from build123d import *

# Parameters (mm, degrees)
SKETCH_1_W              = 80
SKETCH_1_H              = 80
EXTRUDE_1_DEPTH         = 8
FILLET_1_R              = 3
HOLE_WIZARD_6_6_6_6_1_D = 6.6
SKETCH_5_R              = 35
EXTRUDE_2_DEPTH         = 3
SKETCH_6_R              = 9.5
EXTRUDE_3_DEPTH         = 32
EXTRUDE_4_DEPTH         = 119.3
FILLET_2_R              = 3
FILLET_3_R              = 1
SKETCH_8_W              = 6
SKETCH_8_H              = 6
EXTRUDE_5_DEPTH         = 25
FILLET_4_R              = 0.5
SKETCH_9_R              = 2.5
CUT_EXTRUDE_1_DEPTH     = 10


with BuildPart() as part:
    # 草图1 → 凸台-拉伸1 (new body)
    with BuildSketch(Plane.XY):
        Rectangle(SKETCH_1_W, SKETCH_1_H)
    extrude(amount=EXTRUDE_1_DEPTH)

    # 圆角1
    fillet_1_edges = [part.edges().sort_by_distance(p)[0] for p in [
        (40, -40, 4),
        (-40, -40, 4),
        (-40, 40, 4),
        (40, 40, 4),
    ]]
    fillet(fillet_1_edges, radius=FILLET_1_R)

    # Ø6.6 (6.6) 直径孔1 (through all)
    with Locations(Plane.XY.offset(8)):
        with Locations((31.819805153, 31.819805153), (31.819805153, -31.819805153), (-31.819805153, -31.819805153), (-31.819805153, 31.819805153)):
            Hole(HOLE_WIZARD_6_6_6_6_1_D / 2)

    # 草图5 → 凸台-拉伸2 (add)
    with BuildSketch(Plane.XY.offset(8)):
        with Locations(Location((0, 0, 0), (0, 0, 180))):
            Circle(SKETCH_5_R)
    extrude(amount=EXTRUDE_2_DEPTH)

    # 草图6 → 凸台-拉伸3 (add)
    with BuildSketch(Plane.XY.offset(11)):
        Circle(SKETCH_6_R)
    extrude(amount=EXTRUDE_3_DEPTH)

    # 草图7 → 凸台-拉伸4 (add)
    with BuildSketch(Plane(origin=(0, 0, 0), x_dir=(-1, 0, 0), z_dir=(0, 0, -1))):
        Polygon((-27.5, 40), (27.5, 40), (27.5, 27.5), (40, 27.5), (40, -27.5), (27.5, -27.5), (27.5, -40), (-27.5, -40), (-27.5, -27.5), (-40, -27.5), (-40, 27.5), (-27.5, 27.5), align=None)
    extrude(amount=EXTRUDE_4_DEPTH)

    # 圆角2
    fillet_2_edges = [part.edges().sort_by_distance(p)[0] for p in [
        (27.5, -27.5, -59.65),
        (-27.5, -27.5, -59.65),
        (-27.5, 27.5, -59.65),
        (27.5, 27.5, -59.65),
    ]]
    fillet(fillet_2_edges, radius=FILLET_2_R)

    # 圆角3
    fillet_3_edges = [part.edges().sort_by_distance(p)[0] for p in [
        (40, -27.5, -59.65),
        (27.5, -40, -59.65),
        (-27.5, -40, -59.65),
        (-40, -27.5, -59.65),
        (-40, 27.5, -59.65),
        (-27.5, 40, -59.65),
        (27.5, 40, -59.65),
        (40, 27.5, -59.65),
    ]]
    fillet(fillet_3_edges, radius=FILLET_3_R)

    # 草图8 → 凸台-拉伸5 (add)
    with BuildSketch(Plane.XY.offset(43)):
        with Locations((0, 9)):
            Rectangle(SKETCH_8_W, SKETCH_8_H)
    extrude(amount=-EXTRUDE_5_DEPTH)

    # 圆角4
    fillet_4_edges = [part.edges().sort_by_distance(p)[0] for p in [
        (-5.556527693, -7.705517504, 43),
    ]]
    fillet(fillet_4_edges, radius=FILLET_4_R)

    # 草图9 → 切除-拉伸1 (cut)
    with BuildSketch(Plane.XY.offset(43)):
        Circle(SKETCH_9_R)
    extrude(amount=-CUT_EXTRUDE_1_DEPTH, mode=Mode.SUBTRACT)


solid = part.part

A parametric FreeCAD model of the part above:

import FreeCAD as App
import Part
import Sketcher
from FreeCAD import Vector


def edges_at(feature, points):
    """Names of the edges that pass closest to the given points."""
    edges = feature.Shape.Edges
    near = lambda p: min(range(len(edges)), key=lambda i: edges[i].distToShape(Part.Vertex(*p))[0])
    return sorted({f"Edge{near(p) + 1}" for p in points})

doc = App.newDocument("Part")
body = doc.addObject("PartDesign::Body", "Body")

# Sketch on XY plane
sketch1 = body.newObject("Sketcher::SketchObject", "Sketch")
sketch1.AttachmentSupport = (doc.getObject("XY_Plane"), [""])
sketch1.MapMode = "FlatFace"
sketch1.addGeometry([
    Part.LineSegment(Vector(-40, 40, 0), Vector(-40, -40, 0)),
    Part.LineSegment(Vector(-40, -40, 0), Vector(40, -40, 0)),
    Part.LineSegment(Vector(40, -40, 0), Vector(40, 40, 0)),
    Part.LineSegment(Vector(40, 40, 0), Vector(-40, 40, 0)),
], False)
sketch1.addConstraint([
    Sketcher.Constraint("Coincident", 0, 2, 1, 1),
    Sketcher.Constraint("Coincident", 1, 2, 2, 1),
    Sketcher.Constraint("Coincident", 2, 2, 3, 1),
    Sketcher.Constraint("Coincident", 3, 2, 0, 1),
    Sketcher.Constraint("Vertical", 0),
    Sketcher.Constraint("Horizontal", 1),
    Sketcher.Constraint("Vertical", 2),
    Sketcher.Constraint("Horizontal", 3),
    Sketcher.Constraint("Symmetric", 0, 2, 2, 2, -1, 1),
    Sketcher.Constraint("Equal", 3, 0),
    Sketcher.Constraint("DistanceX", 1, 1, 1, 2, 80.0),
])
pad1 = body.newObject("PartDesign::Pad", "Pad")
pad1.Profile = sketch1
pad1.Length = 8
doc.recompute()

fillet = body.newObject("PartDesign::Fillet", "Fillet")
fillet.Base = (pad1, edges_at(pad1, [
    (40, -40, 4),
    (-40, -40, 4),
    (-40, 40, 4),
    (40, 40, 4),
]))
fillet.Radius = 3

# Sketch on XY plane
sketch2 = body.newObject("Sketcher::SketchObject", "Sketch001")
sketch2.AttachmentSupport = (doc.getObject("XY_Plane"), [""])
sketch2.MapMode = "FlatFace"
sketch2.AttachmentOffset = App.Placement(Vector(0, 0, 8), App.Rotation())
sketch2.addGeometry([
    Part.Circle(Vector(31.819805, 31.819805, 0), Vector(0, 0, 1), 3.3),
    Part.Circle(Vector(31.819805, -31.819805, 0), Vector(0, 0, 1), 3.3),
    Part.Circle(Vector(-31.819805, -31.819805, 0), Vector(0, 0, 1), 3.3),
    Part.Circle(Vector(-31.819805, 31.819805, 0), Vector(0, 0, 1), 3.3),
], False)
sketch2.addConstraint([
    Sketcher.Constraint("Equal", 0, 1),
    Sketcher.Constraint("Equal", 1, 2),
    Sketcher.Constraint("Equal", 2, 3),
    Sketcher.Constraint("Symmetric", 0, 3, 2, 3, -1, 1),
    Sketcher.Constraint("Symmetric", 1, 3, 3, 3, -1, 1),
    Sketcher.Constraint("Symmetric", 1, 3, 2, 3, -2),
    Sketcher.Constraint("Diameter", 0, 6.6),
    Sketcher.Constraint("DistanceY", 1, 3, 0, 3, 63.63961),
    Sketcher.Constraint("DistanceX", 2, 3, 1, 3, 63.63961),
])
doc.recompute()
hole = body.newObject("PartDesign::Hole", "Hole")
hole.Profile = sketch2
hole.ThreadType = "None"
hole.Diameter = 6.6
hole.DepthType = "ThroughAll"

# Sketch on XY plane
sketch3 = body.newObject("Sketcher::SketchObject", "Sketch002")
sketch3.AttachmentSupport = (doc.getObject("XY_Plane"), [""])
sketch3.MapMode = "FlatFace"
sketch3.AttachmentOffset = App.Placement(Vector(0, 0, 8), App.Rotation())
sketch3.addGeometry(Part.Circle(Vector(0, 0, 0), Vector(0, 0, 1), 35), False)
sketch3.addConstraint([
    Sketcher.Constraint("Coincident", 0, 3, -1, 1),
    Sketcher.Constraint("Diameter", 0, 70.0),
])
pad2 = body.newObject("PartDesign::Pad", "Pad001")
pad2.Profile = sketch3
pad2.Length = 3

# Sketch on XY plane
sketch4 = body.newObject("Sketcher::SketchObject", "Sketch003")
sketch4.AttachmentSupport = (doc.getObject("XY_Plane"), [""])
sketch4.MapMode = "FlatFace"
sketch4.AttachmentOffset = App.Placement(Vector(0, 0, 11), App.Rotation())
sketch4.addGeometry(Part.Circle(Vector(0, 0, 0), Vector(0, 0, 1), 9.5), False)
sketch4.addConstraint([
    Sketcher.Constraint("Coincident", 0, 3, -1, 1),
    Sketcher.Constraint("Diameter", 0, 19.0),
])
pad3 = body.newObject("PartDesign::Pad", "Pad002")
pad3.Profile = sketch4
pad3.Length = 32

# Sketch on XY plane
sketch5 = body.newObject("Sketcher::SketchObject", "Sketch004")
sketch5.AttachmentSupport = (doc.getObject("XY_Plane"), [""])
sketch5.MapMode = "FlatFace"
sketch5.addGeometry([
    Part.LineSegment(Vector(-27.5, 40, 0), Vector(27.5, 40, 0)),  # 0
    Part.LineSegment(Vector(27.5, 40, 0), Vector(27.5, 27.5, 0)),  # 1
    Part.LineSegment(Vector(27.5, 27.5, 0), Vector(40, 27.5, 0)),  # 2
    Part.LineSegment(Vector(40, 27.5, 0), Vector(40, -27.5, 0)),  # 3
    Part.LineSegment(Vector(40, -27.5, 0), Vector(27.5, -27.5, 0)),  # 4
    Part.LineSegment(Vector(27.5, -27.5, 0), Vector(27.5, -40, 0)),  # 5
    Part.LineSegment(Vector(27.5, -40, 0), Vector(-27.5, -40, 0)),  # 6
    Part.LineSegment(Vector(-27.5, -40, 0), Vector(-27.5, -27.5, 0)),  # 7
    Part.LineSegment(Vector(-27.5, -27.5, 0), Vector(-40, -27.5, 0)),  # 8
    Part.LineSegment(Vector(-40, -27.5, 0), Vector(-40, 27.5, 0)),  # 9
    Part.LineSegment(Vector(-40, 27.5, 0), Vector(-27.5, 27.5, 0)),  # 10
    Part.LineSegment(Vector(-27.5, 27.5, 0), Vector(-27.5, 40, 0)),  # 11
], False)
sketch5.addConstraint([
    Sketcher.Constraint("Coincident", 0, 2, 1, 1),
    Sketcher.Constraint("Coincident", 1, 2, 2, 1),
    Sketcher.Constraint("Coincident", 2, 2, 3, 1),
    Sketcher.Constraint("Coincident", 3, 2, 4, 1),
    Sketcher.Constraint("Coincident", 4, 2, 5, 1),
    Sketcher.Constraint("Coincident", 5, 2, 6, 1),
    Sketcher.Constraint("Coincident", 6, 2, 7, 1),
    Sketcher.Constraint("Coincident", 7, 2, 8, 1),
    Sketcher.Constraint("Coincident", 8, 2, 9, 1),
    Sketcher.Constraint("Coincident", 9, 2, 10, 1),
    Sketcher.Constraint("Coincident", 10, 2, 11, 1),
    Sketcher.Constraint("Coincident", 11, 2, 0, 1),
    Sketcher.Constraint("Horizontal", 0),
    Sketcher.Constraint("Vertical", 1),
    Sketcher.Constraint("Horizontal", 2),
    Sketcher.Constraint("Vertical", 3),
    Sketcher.Constraint("Horizontal", 4),
    Sketcher.Constraint("Vertical", 5),
    Sketcher.Constraint("Horizontal", 6),
    Sketcher.Constraint("Vertical", 7),
    Sketcher.Constraint("Horizontal", 8),
    Sketcher.Constraint("Vertical", 9),
    Sketcher.Constraint("Horizontal", 10),
    Sketcher.Constraint("Vertical", 11),
    Sketcher.Constraint("Symmetric", 0, 2, 6, 2, -1, 1),
    Sketcher.Constraint("Symmetric", 2, 2, 8, 2, -1, 1),
    Sketcher.Constraint("Symmetric", 4, 2, 10, 2, -1, 1),
    Sketcher.Constraint("Symmetric", 4, 2, 7, 2, -2),
    Sketcher.Constraint("Equal", 10, 1),
    Sketcher.Constraint("Equal", 6, 3),
    Sketcher.Constraint("DistanceX", 0, 1, 0, 2, 55.0),
    Sketcher.Constraint("DistanceX", 2, 1, 2, 2, 12.5),
])
pad4 = body.newObject("PartDesign::Pad", "Pad003")
pad4.Profile = sketch5
pad4.Length = 119.3
pad4.Reversed = True
doc.recompute()

fillet2 = body.newObject("PartDesign::Fillet", "Fillet001")
fillet2.Base = (pad4, edges_at(pad4, [
    (27.5, -27.5, -59.65),
    (-27.5, -27.5, -59.65),
    (-27.5, 27.5, -59.65),
    (27.5, 27.5, -59.65),
]))
fillet2.Radius = 3
doc.recompute()

fillet3 = body.newObject("PartDesign::Fillet", "Fillet002")
fillet3.Base = (fillet2, edges_at(fillet2, [
    (40, -27.5, -59.65),
    (27.5, -40, -59.65),
    (-27.5, -40, -59.65),
    (-40, -27.5, -59.65),
    (-40, 27.5, -59.65),
    (-27.5, 40, -59.65),
    (27.5, 40, -59.65),
    (40, 27.5, -59.65),
]))
fillet3.Radius = 1

# Sketch on XY plane
sketch6 = body.newObject("Sketcher::SketchObject", "Sketch005")
sketch6.AttachmentSupport = (doc.getObject("XY_Plane"), [""])
sketch6.MapMode = "FlatFace"
sketch6.AttachmentOffset = App.Placement(Vector(0, 0, 43), App.Rotation())
sketch6.addGeometry([
    Part.LineSegment(Vector(-3, 12, 0), Vector(-3, 6, 0)),
    Part.LineSegment(Vector(-3, 6, 0), Vector(3, 6, 0)),
    Part.LineSegment(Vector(3, 6, 0), Vector(3, 12, 0)),
    Part.LineSegment(Vector(3, 12, 0), Vector(-3, 12, 0)),
], False)
sketch6.addConstraint([
    Sketcher.Constraint("Coincident", 0, 2, 1, 1),
    Sketcher.Constraint("Coincident", 1, 2, 2, 1),
    Sketcher.Constraint("Coincident", 2, 2, 3, 1),
    Sketcher.Constraint("Coincident", 3, 2, 0, 1),
    Sketcher.Constraint("Vertical", 0),
    Sketcher.Constraint("Horizontal", 1),
    Sketcher.Constraint("Vertical", 2),
    Sketcher.Constraint("Horizontal", 3),
    Sketcher.Constraint("Equal", 3, 0),
    Sketcher.Constraint("DistanceX", 1, 1, 1, 2, 6.0),
    Sketcher.Constraint("DistanceX", 0, 2, -1, 1, 3.0),
    Sketcher.Constraint("DistanceY", -1, 1, 0, 2, 6.0),
])
pad5 = body.newObject("PartDesign::Pad", "Pad004")
pad5.Profile = sketch6
pad5.Length = 25
pad5.Reversed = True
doc.recompute()

fillet4 = body.newObject("PartDesign::Fillet", "Fillet003")
fillet4.Base = (pad5, edges_at(pad5, [(-5.557, -7.706, 43)]))
fillet4.Radius = 0.5

# Sketch on XY plane
sketch7 = body.newObject("Sketcher::SketchObject", "Sketch006")
sketch7.AttachmentSupport = (doc.getObject("XY_Plane"), [""])
sketch7.MapMode = "FlatFace"
sketch7.AttachmentOffset = App.Placement(Vector(0, 0, 43), App.Rotation())
sketch7.addGeometry(Part.Circle(Vector(0, 0, 0), Vector(0, 0, 1), 2.5), False)
sketch7.addConstraint([
    Sketcher.Constraint("Coincident", 0, 3, -1, 1),
    Sketcher.Constraint("Diameter", 0, 5.0),
])
pocket1 = body.newObject("PartDesign::Pocket", "Pocket")
pocket1.Profile = sketch7
pocket1.Length = 10

doc.recompute()
